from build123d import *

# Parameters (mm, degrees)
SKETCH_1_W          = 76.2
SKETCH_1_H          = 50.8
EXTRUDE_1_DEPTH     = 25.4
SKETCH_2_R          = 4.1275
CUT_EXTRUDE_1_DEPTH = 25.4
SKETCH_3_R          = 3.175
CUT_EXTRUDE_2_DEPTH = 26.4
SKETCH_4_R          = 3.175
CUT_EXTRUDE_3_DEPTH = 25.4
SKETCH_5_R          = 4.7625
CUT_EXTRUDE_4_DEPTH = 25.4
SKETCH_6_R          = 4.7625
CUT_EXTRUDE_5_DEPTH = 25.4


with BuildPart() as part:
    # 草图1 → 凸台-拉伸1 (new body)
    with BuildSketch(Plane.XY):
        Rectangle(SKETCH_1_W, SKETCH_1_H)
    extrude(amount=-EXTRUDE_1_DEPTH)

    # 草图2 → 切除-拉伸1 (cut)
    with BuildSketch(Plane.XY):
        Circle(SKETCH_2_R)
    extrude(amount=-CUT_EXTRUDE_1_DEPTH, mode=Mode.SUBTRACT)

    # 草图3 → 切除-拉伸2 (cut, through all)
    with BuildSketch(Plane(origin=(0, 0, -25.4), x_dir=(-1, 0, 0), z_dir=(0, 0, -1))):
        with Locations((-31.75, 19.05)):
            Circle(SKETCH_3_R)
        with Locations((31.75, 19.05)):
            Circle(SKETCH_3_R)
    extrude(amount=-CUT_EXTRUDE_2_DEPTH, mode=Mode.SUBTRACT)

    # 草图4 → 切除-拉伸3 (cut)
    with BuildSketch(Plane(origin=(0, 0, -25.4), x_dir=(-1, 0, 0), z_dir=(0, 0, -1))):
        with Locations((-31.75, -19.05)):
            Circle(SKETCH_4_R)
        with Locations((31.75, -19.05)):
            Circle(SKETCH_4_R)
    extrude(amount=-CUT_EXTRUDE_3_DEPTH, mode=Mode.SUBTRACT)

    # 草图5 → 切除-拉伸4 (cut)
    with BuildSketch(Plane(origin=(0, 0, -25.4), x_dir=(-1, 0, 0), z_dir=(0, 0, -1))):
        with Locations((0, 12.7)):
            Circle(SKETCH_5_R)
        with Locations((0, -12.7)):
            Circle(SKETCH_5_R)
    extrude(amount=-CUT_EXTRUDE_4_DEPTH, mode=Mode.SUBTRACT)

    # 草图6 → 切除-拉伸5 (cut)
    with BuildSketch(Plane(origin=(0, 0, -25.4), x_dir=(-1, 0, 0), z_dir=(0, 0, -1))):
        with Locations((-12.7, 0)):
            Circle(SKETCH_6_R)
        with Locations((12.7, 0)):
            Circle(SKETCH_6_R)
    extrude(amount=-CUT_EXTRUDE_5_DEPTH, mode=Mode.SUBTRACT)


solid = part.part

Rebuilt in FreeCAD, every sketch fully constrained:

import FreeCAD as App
import Part
import Sketcher
Q = App.Units.Quantity

doc = App.newDocument("Part")
params = doc.addObject("Spreadsheet::Sheet", "Params")
for row, (alias, value) in enumerate([
    ("sketch1_width", "3 in"),
    ("sketch1_height", "2 in"),
    ("pad1_length", "1 in"),
    ("sketch2_diameter", "0.325 in"),
    ("pocket1_length", "1 in"),
    ("sketch3_diameter", "0.25 in"),
    ("sketch4_diameter", "0.25 in"),
    ("pocket3_length", "1 in"),
    ("sketch5_diameter", "0.375 in"),
    ("pocket4_length", "1 in"),
    ("sketch6_diameter", "0.375 in"),
    ("pocket5_length", "1 in"),
], start=1):
    params.set(f"A{row}", alias)
    params.set(f"B{row}", "=" + value)
    params.setAlias(f"B{row}", alias)

body = doc.addObject("PartDesign::Body", "Body")

sketch1 = body.newObject("Sketcher::SketchObject", "Sketch")
sketch1.AttachmentSupport = (doc.getObject("XY_Plane"), [""])
sketch1.MapMode = "FlatFace"
sketch1.addGeometry([
    Part.LineSegment(App.Vector(-38, 25, 0), App.Vector(-38, -25, 0)),
    Part.LineSegment(App.Vector(-38, -25, 0), App.Vector(38, -25, 0)),
    Part.LineSegment(App.Vector(38, -25, 0), App.Vector(38, 25, 0)),
    Part.LineSegment(App.Vector(38, 25, 0), App.Vector(-38, 25, 0)),
], False)
sketch1.addConstraint([
    Sketcher.Constraint("Coincident", 0, 2, 1, 1),
    Sketcher.Constraint("Coincident", 1, 2, 2, 1),
    Sketcher.Constraint("Coincident", 2, 2, 3, 1),
    Sketcher.Constraint("Coincident", 3, 2, 0, 1),
    Sketcher.Constraint("Vertical", 0),
    Sketcher.Constraint("Horizontal", 1),
    Sketcher.Constraint("Vertical", 2),
    Sketcher.Constraint("Horizontal", 3),
    Sketcher.Constraint("Symmetric", 0, 2, 2, 2, -1, 1),
    Sketcher.Constraint("DistanceX", 1, 1, 1, 2, Q("3 in")),
    Sketcher.Constraint("DistanceY", 0, 2, 0, 1, Q("2 in")),
])
sketch1.setExpression("Constraints[9]", "Params.sketch1_width")
sketch1.setExpression("Constraints[10]", "Params.sketch1_height")
pad1 = body.newObject("PartDesign::Pad", "Pad")
pad1.Profile = sketch1
pad1.setExpression("Length", "Params.pad1_length")
pad1.Reversed = True

sketch2 = body.newObject("Sketcher::SketchObject", "Sketch001")
sketch2.AttachmentSupport = (doc.getObject("XY_Plane"), [""])
sketch2.MapMode = "FlatFace"
sketch2.addGeometry(Part.Circle(App.Vector(0, 0, 0), App.Vector(0, 0, 1), 4.1), False)
sketch2.addConstraint([
    Sketcher.Constraint("Coincident", 0, 3, -1, 1),
    Sketcher.Constraint("Diameter", 0, Q("0.325 in")),
])
sketch2.setExpression("Constraints[1]", "Params.sketch2_diameter")
pocket1 = body.newObject("PartDesign::Pocket", "Pocket")
pocket1.Profile = sketch2
pocket1.setExpression("Length", "Params.pocket1_length")

sketch3 = body.newObject("Sketcher::SketchObject", "Sketch002")
sketch3.AttachmentSupport = (doc.getObject("XY_Plane"), [""])
sketch3.MapMode = "FlatFace"
sketch3.AttachmentOffset = App.Placement(App.Vector(0, 0, -1 * 25.4), App.Rotation())
sketch3.addGeometry([
    Part.Circle(App.Vector(31.8, 19.1, 0), App.Vector(0, 0, 1), 3.2),
    Part.Circle(App.Vector(-31.8, 19.1, 0), App.Vector(0, 0, 1), 3.2),
], False)
sketch3.addConstraint([
    Sketcher.Constraint("Equal", 0, 1),
    Sketcher.Constraint("Symmetric", 0, 3, 1, 3, -2),
    Sketcher.Constraint("Diameter", 0, Q("0.25 in")),
    Sketcher.Constraint("DistanceX", 1, 3, 0, 3, Q("2.5 in")),
    Sketcher.Constraint("DistanceY", -1, 1, 0, 3, Q("0.75 in")),
])
sketch3.setExpression("Constraints[2]", "Params.sketch3_diameter")
pocket2 = body.newObject("PartDesign::Pocket", "Pocket001")
pocket2.Profile = sketch3
pocket2.Type = "ThroughAll"
pocket2.Reversed = True

sketch4 = body.newObject("Sketcher::SketchObject", "Sketch003")
sketch4.AttachmentSupport = (doc.getObject("XY_Plane"), [""])
sketch4.MapMode = "FlatFace"
sketch4.AttachmentOffset = App.Placement(App.Vector(0, 0, -1 * 25.4), App.Rotation())
sketch4.addGeometry([
    Part.Circle(App.Vector(31.8, -19.1, 0), App.Vector(0, 0, 1), 3.2),
    Part.Circle(App.Vector(-31.8, -19.1, 0), App.Vector(0, 0, 1), 3.2),
], False)
sketch4.addConstraint([
    Sketcher.Constraint("Equal", 0, 1),
    Sketcher.Constraint("Symmetric", 0, 3, 1, 3, -2),
    Sketcher.Constraint("Diameter", 0, Q("0.25 in")),
    Sketcher.Constraint("DistanceX", 1, 3, 0, 3, Q("2.5 in")),
    Sketcher.Constraint("DistanceY", 0, 3, -1, 1, Q("0.75 in")),
])
sketch4.setExpression("Constraints[2]", "Params.sketch4_diameter")
pocket3 = body.newObject("PartDesign::Pocket", "Pocket002")
pocket3.Profile = sketch4
pocket3.setExpression("Length", "Params.pocket3_length")
pocket3.Reversed = True

sketch5 = body.newObject("Sketcher::SketchObject", "Sketch004")
sketch5.AttachmentSupport = (doc.getObject("XY_Plane"), [""])
sketch5.MapMode = "FlatFace"
sketch5.AttachmentOffset = App.Placement(App.Vector(0, 0, -1 * 25.4), App.Rotation())
sketch5.addGeometry([
    Part.Circle(App.Vector(0, 12.7, 0), App.Vector(0, 0, 1), 4.8),
    Part.Circle(App.Vector(0, -12.7, 0), App.Vector(0, 0, 1), 4.8),
], False)
sketch5.addConstraint([
    Sketcher.Constraint("Equal", 0, 1),
    Sketcher.Constraint("Symmetric", 0, 3, 1, 3, -1, 1),
    Sketcher.Constraint("PointOnObject", 0, 3, -2),
    Sketcher.Constraint("Diameter", 0, Q("0.375 in")),
    Sketcher.Constraint("DistanceY", 1, 3, 0, 3, Q("1 in")),
])
sketch5.setExpression("Constraints[3]", "Params.sketch5_diameter")
pocket4 = body.newObject("PartDesign::Pocket", "Pocket003")
pocket4.Profile = sketch5
pocket4.setExpression("Length", "Params.pocket4_length")
pocket4.Reversed = True

sketch6 = body.newObject("Sketcher::SketchObject", "Sketch005")
sketch6.AttachmentSupport = (doc.getObject("XY_Plane"), [""])
sketch6.MapMode = "FlatFace"
sketch6.AttachmentOffset = App.Placement(App.Vector(0, 0, -1 * 25.4), App.Rotation())
sketch6.addGeometry([
    Part.Circle(App.Vector(12.7, 0, 0), App.Vector(0, 0, 1), 4.8),
    Part.Circle(App.Vector(-12.7, 0, 0), App.Vector(0, 0, 1), 4.8),
], False)
sketch6.addConstraint([
    Sketcher.Constraint("Equal", 0, 1),
    Sketcher.Constraint("Symmetric", 0, 3, 1, 3, -1, 1),
    Sketcher.Constraint("PointOnObject", 0, 3, -1),
    Sketcher.Constraint("Diameter", 0, Q("0.375 in")),
    Sketcher.Constraint("DistanceX", 1, 3, 0, 3, Q("1 in")),
])
sketch6.setExpression("Constraints[3]", "Params.sketch6_diameter")
pocket5 = body.newObject("PartDesign::Pocket", "Pocket004")
pocket5.Profile = sketch6
pocket5.setExpression("Length", "Params.pocket5_length")
pocket5.Reversed = True

doc.recompute()
